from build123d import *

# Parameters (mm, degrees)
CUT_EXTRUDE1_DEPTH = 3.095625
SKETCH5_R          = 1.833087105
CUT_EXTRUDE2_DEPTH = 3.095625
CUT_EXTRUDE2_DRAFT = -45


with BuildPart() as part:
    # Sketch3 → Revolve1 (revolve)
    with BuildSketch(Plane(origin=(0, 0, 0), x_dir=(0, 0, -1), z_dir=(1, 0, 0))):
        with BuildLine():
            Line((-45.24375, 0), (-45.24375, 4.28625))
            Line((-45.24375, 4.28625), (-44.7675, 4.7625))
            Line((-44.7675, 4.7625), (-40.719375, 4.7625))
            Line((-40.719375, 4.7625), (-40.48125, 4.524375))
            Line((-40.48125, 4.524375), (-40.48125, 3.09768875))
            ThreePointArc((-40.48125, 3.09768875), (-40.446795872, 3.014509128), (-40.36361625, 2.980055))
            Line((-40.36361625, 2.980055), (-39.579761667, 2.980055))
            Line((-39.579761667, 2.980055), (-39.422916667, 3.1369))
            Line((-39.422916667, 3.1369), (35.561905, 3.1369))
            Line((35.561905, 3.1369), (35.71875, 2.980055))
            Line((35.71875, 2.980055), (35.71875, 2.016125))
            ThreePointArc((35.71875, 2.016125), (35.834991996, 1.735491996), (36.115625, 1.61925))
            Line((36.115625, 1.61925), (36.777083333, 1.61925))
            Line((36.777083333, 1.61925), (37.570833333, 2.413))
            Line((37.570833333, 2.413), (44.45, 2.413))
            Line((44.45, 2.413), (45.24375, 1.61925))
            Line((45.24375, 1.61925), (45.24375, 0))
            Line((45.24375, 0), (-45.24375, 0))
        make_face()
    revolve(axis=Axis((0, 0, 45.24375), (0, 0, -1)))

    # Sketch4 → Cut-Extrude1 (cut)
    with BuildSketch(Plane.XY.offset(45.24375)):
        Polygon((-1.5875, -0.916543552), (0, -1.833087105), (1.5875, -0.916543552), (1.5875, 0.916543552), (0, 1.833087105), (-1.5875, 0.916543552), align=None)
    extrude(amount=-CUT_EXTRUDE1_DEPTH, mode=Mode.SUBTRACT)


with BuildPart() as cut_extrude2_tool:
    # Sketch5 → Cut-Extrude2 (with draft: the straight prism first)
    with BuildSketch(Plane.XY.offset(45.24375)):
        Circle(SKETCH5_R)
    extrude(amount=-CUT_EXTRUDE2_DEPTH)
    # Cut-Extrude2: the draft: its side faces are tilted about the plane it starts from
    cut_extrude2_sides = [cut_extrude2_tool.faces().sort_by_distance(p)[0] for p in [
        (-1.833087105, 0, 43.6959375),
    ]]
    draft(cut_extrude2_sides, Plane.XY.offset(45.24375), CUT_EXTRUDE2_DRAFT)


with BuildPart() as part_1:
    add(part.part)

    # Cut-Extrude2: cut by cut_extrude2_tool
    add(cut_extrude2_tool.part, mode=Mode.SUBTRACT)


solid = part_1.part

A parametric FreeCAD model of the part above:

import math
import FreeCAD as App
import Part
import Sketcher

V = App.Vector
Q = App.Units.Quantity


def faces_at(feature, points):
    """Names of the faces that lie closest to the given points."""
    faces = feature.Shape.Faces
    near = lambda p: min(range(len(faces)), key=lambda i: faces[i].distToShape(Part.Vertex(*p))[0])
    return sorted({f"Face{near(p) + 1}" for p in points})

doc = App.newDocument("Part")
body = doc.addObject("PartDesign::Body", "Body")

# Sketch on YZ plane
sketch1 = body.newObject("Sketcher::SketchObject", "Sketch")
sketch1.AttachmentSupport = (doc.getObject("YZ_Plane"), [""])
sketch1.MapMode = "FlatFace"
sketch1.addGeometry(Part.LineSegment(V(4.28625, 45.24375, 0), V(0, 45.24375, 0)), False)
sketch1.addGeometry(Part.LineSegment(V(0, 45.24375, 0), V(0, -45.24375, 0)), False)
sketch1.addGeometry(Part.LineSegment(V(0, -45.24375, 0), V(1.61925, -45.24375, 0)), False)
sketch1.addGeometry(Part.LineSegment(V(1.61925, -45.24375, 0), V(2.413, -44.45, 0)), False)
sketch1.addGeometry(Part.LineSegment(V(2.413, -44.45, 0), V(2.413, -37.570833, 0)), False)
sketch1.addGeometry(Part.LineSegment(V(2.413, -37.570833, 0), V(1.61925, -36.777083, 0)), False)
sketch1.addGeometry(Part.LineSegment(V(1.61925, -36.777083, 0), V(1.61925, -36.115625, 0)), False)
sketch1.addGeometry(Part.ArcOfCircle(Part.Circle(V(2.016125, -36.115625, 0), V(0, 0, 1), 0.396875), math.radians(90), math.radians(180)), False)
sketch1.addGeometry(Part.LineSegment(V(2.016125, -35.71875, 0), V(2.980055, -35.71875, 0)), False)
sketch1.addGeometry(Part.LineSegment(V(2.980055, -35.71875, 0), V(3.1369, -35.561905, 0)), False)
sketch1.addGeometry(Part.LineSegment(V(3.1369, -35.561905, 0), V(3.1369, 39.422917, 0)), False)
sketch1.addGeometry(Part.LineSegment(V(3.1369, 39.422917, 0), V(2.980055, 39.579762, 0)), False)
sketch1.addGeometry(Part.LineSegment(V(2.980055, 39.579762, 0), V(2.980055, 40.363616, 0)), False)
sketch1.addGeometry(Part.ArcOfCircle(Part.Circle(V(3.097689, 40.363616, 0), V(0, 0, 1), 0.117634), math.radians(90), math.radians(180)), False)
sketch1.addGeometry(Part.LineSegment(V(3.097689, 40.48125, 0), V(4.524375, 40.48125, 0)), False)
sketch1.addGeometry(Part.LineSegment(V(4.524375, 40.48125, 0), V(4.7625, 40.719375, 0)), False)
sketch1.addGeometry(Part.LineSegment(V(4.7625, 40.719375, 0), V(4.7625, 44.7675, 0)), False)
sketch1.addGeometry(Part.LineSegment(V(4.7625, 44.7675, 0), V(4.28625, 45.24375, 0)), False)
sketch1.addConstraint(Sketcher.Constraint("Coincident", 0, 2, 1, 1))
sketch1.addConstraint(Sketcher.Constraint("Coincident", 1, 2, 2, 1))
sketch1.addConstraint(Sketcher.Constraint("Coincident", 2, 2, 3, 1))
sketch1.addConstraint(Sketcher.Constraint("Coincident", 3, 2, 4, 1))
sketch1.addConstraint(Sketcher.Constraint("Coincident", 4, 2, 5, 1))
sketch1.addConstraint(Sketcher.Constraint("Coincident", 5, 2, 6, 1))
sketch1.addConstraint(Sketcher.Constraint("Tangent", 6, 2, 7, 2))
sketch1.addConstraint(Sketcher.Constraint("Tangent", 7, 1, 8, 1))
sketch1.addConstraint(Sketcher.Constraint("Coincident", 8, 2, 9, 1))
sketch1.addConstraint(Sketcher.Constraint("Coincident", 9, 2, 10, 1))
sketch1.addConstraint(Sketcher.Constraint("Coincident", 10, 2, 11, 1))
sketch1.addConstraint(Sketcher.Constraint("Coincident", 11, 2, 12, 1))
sketch1.addConstraint(Sketcher.Constraint("Tangent", 12, 2, 13, 2))
sketch1.addConstraint(Sketcher.Constraint("Tangent", 13, 1, 14, 1))
sketch1.addConstraint(Sketcher.Constraint("Coincident", 14, 2, 15, 1))
sketch1.addConstraint(Sketcher.Constraint("Coincident", 15, 2, 16, 1))
sketch1.addConstraint(Sketcher.Constraint("Coincident", 16, 2, 17, 1))
sketch1.addConstraint(Sketcher.Constraint("Coincident", 17, 2, 0, 1))
sketch1.addConstraint(Sketcher.Constraint("Horizontal", 0))
sketch1.addConstraint(Sketcher.Constraint("Vertical", 1))
sketch1.addConstraint(Sketcher.Constraint("Horizontal", 2))
sketch1.addConstraint(Sketcher.Constraint("Vertical", 4))
sketch1.addConstraint(Sketcher.Constraint("Vertical", 6))
sketch1.addConstraint(Sketcher.Constraint("Horizontal", 8))
sketch1.addConstraint(Sketcher.Constraint("Vertical", 10))
sketch1.addConstraint(Sketcher.Constraint("Vertical", 12))
sketch1.addConstraint(Sketcher.Constraint("Horizontal", 14))
sketch1.addConstraint(Sketcher.Constraint("Vertical", 16))
sketch1.addConstraint(Sketcher.Constraint("Symmetric", 0, 2, 1, 2, -1, 1))
sketch1.addConstraint(Sketcher.Constraint("Perpendicular", 3, 5))
sketch1.addConstraint(Sketcher.Constraint("Perpendicular", 5, 9))
sketch1.addConstraint(Sketcher.Constraint("Perpendicular", 9, 11))
sketch1.addConstraint(Sketcher.Constraint("Perpendicular", 11, 15))
sketch1.addConstraint(Sketcher.Constraint("Perpendicular", 15, 17))
sketch1.addConstraint(Sketcher.Constraint("Vertical", 2, 2, 5, 2))
sketch1.addConstraint(Sketcher.Constraint("Vertical", 8, 2, 11, 2))
sketch1.addConstraint(Sketcher.Constraint("Equal", 3, 5))
sketch1.addConstraint(Sketcher.Constraint("Radius", 7, Q("0.015625 in")))
sketch1.addConstraint(Sketcher.Constraint("DistanceY", 1, 2, 1, 1, Q("3.5625 in")))
sketch1.addConstraint(Sketcher.Constraint("DistanceY", 3, 2, -1, 1, Q("1.75 in")))
sketch1.addConstraint(Sketcher.Constraint("DistanceY", 7, 3, -1, 1, Q("1.421875 in")))
sketch1.addConstraint(Sketcher.Constraint("DistanceX", -1, 1, 3, 2, Q("0.095 in")))
sketch1.addConstraint(Sketcher.Constraint("DistanceY", -1, 1, 13, 1, Q("1.59375 in")))
sketch1.addConstraint(Sketcher.Constraint("DistanceX", -1, 1, 15, 2, Q("0.1875 in")))
sketch1.addConstraint(Sketcher.Constraint("DistanceX", 10, 2, 15, 2, Q("0.064 in")))
sketch1.addConstraint(Sketcher.Constraint("DistanceY", -1, 1, 16, 2, Q("1.7625 in")))
sketch1.addConstraint(Sketcher.Constraint("Radius", 13, 0.117634))
sketch1.addConstraint(Sketcher.Constraint("DistanceY", 7, 3, 9, 2, Q("0.0218 in")))
sketch1.addConstraint(Sketcher.Constraint("DistanceX", 12, 2, 14, 2, Q("0.0608 in")))
sketch1.addConstraint(Sketcher.Constraint("DistanceY", 6, 1, 6, 2, 0.661458))
sketch1.addConstraint(Sketcher.Constraint("DistanceY", 10, 1, 10, 2, 74.984822))
revolution = body.newObject("PartDesign::Revolution", "Revolution")
revolution.Profile = sketch1
revolution.ReferenceAxis = (sketch1, ["V_Axis"])
revolution.Angle = 360

# Sketch on XY plane
sketch2 = body.newObject("Sketcher::SketchObject", "Sketch001")
sketch2.AttachmentSupport = (doc.getObject("XY_Plane"), [""])
sketch2.MapMode = "FlatFace"
sketch2.AttachmentOffset = App.Placement(V(0, 0, 1.78125 * 25.4), App.Rotation())
sketch2.addGeometry(Part.LineSegment(V(-1.5875, -0.916544, 0), V(0, -1.833087, 0)), False)
sketch2.addGeometry(Part.LineSegment(V(0, -1.833087, 0), V(1.5875, -0.916544, 0)), False)
sketch2.addGeometry(Part.LineSegment(V(1.5875, -0.916544, 0), V(1.5875, 0.916544, 0)), False)
sketch2.addGeometry(Part.LineSegment(V(1.5875, 0.916544, 0), V(0, 1.833087, 0)), False)
sketch2.addGeometry(Part.LineSegment(V(0, 1.833087, 0), V(-1.5875, 0.916544, 0)), False)
sketch2.addGeometry(Part.LineSegment(V(-1.5875, 0.916544, 0), V(-1.5875, -0.916544, 0)), False)
sketch2.addConstraint(Sketcher.Constraint("Coincident", 0, 2, 1, 1))
sketch2.addConstraint(Sketcher.Constraint("Coincident", 1, 2, 2, 1))
sketch2.addConstraint(Sketcher.Constraint("Coincident", 2, 2, 3, 1))
sketch2.addConstraint(Sketcher.Constraint("Coincident", 3, 2, 4, 1))
sketch2.addConstraint(Sketcher.Constraint("Coincident", 4, 2, 5, 1))
sketch2.addConstraint(Sketcher.Constraint("Coincident", 5, 2, 0, 1))
sketch2.addConstraint(Sketcher.Constraint("Vertical", 2))
sketch2.addConstraint(Sketcher.Constraint("Vertical", 5))
sketch2.addConstraint(Sketcher.Constraint("Symmetric", 0, 2, 3, 2, -1, 1))
sketch2.addConstraint(Sketcher.Constraint("Symmetric", 1, 2, 4, 2, -1, 1))
sketch2.addConstraint(Sketcher.Constraint("PointOnObject", 0, 2, -2))
sketch2.addConstraint(Sketcher.Constraint("Parallel", 0, 3))
sketch2.addConstraint(Sketcher.Constraint("Horizontal", 2, 2, 4, 2))
sketch2.addConstraint(Sketcher.Constraint("Angle", 0, Q("-30 deg")))
sketch2.addConstraint(Sketcher.Constraint("DistanceX", -1, 1, 1, 2, Q("0.0625 in")))
sketch2.addConstraint(Sketcher.Constraint("DistanceY", 2, 1, 2, 2, 1.833087))
pocket1 = body.newObject("PartDesign::Pocket", "Pocket")
pocket1.Profile = sketch2
pocket1.Length = 3.095625
body2 = doc.addObject("PartDesign::Body", "Body001")

# Sketch on XY plane
sketch3 = body2.newObject("Sketcher::SketchObject", "Sketch002")
sketch3.AttachmentSupport = (doc.getObject("XY_Plane001"), [""])
sketch3.MapMode = "FlatFace"
sketch3.AttachmentOffset = App.Placement(V(0, 0, 1.78125 * 25.4), App.Rotation())
sketch3.addGeometry(Part.Circle(V(0, 0, 0), V(0, 0, 1), 1.833087), False)
sketch3.addConstraint(Sketcher.Constraint("Coincident", 0, 3, -1, 1))
sketch3.addConstraint(Sketcher.Constraint("Diameter", 0, 3.666174))
pad1 = body2.newObject("PartDesign::Pad", "Pad")
pad1.Profile = sketch3
pad1.Length = 3.095625
pad1.Reversed = True
doc.recompute()

datumplane = body2.newObject("PartDesign::Plane", "DatumPlane")
datumplane.AttachmentSupport = (doc.getObject("XY_Plane001"), [""])
datumplane.MapMode = "FlatFace"
datumplane.AttachmentOffset = App.Placement(V(0, 0, 1.78125 * 25.4), App.Rotation())
draft = body2.newObject("PartDesign::Draft", "Draft")
draft.Base = (pad1, faces_at(pad1, [(-1.833, 0, 43.696)]))
draft.NeutralPlane = (datumplane, [""])
draft.Angle = 45
draft.Reversed = True
doc.recompute()

boolean = body.newObject("PartDesign::Boolean", "Boolean")
boolean.Type = "Cut"
boolean.addObjects([body2])

doc.recompute()
